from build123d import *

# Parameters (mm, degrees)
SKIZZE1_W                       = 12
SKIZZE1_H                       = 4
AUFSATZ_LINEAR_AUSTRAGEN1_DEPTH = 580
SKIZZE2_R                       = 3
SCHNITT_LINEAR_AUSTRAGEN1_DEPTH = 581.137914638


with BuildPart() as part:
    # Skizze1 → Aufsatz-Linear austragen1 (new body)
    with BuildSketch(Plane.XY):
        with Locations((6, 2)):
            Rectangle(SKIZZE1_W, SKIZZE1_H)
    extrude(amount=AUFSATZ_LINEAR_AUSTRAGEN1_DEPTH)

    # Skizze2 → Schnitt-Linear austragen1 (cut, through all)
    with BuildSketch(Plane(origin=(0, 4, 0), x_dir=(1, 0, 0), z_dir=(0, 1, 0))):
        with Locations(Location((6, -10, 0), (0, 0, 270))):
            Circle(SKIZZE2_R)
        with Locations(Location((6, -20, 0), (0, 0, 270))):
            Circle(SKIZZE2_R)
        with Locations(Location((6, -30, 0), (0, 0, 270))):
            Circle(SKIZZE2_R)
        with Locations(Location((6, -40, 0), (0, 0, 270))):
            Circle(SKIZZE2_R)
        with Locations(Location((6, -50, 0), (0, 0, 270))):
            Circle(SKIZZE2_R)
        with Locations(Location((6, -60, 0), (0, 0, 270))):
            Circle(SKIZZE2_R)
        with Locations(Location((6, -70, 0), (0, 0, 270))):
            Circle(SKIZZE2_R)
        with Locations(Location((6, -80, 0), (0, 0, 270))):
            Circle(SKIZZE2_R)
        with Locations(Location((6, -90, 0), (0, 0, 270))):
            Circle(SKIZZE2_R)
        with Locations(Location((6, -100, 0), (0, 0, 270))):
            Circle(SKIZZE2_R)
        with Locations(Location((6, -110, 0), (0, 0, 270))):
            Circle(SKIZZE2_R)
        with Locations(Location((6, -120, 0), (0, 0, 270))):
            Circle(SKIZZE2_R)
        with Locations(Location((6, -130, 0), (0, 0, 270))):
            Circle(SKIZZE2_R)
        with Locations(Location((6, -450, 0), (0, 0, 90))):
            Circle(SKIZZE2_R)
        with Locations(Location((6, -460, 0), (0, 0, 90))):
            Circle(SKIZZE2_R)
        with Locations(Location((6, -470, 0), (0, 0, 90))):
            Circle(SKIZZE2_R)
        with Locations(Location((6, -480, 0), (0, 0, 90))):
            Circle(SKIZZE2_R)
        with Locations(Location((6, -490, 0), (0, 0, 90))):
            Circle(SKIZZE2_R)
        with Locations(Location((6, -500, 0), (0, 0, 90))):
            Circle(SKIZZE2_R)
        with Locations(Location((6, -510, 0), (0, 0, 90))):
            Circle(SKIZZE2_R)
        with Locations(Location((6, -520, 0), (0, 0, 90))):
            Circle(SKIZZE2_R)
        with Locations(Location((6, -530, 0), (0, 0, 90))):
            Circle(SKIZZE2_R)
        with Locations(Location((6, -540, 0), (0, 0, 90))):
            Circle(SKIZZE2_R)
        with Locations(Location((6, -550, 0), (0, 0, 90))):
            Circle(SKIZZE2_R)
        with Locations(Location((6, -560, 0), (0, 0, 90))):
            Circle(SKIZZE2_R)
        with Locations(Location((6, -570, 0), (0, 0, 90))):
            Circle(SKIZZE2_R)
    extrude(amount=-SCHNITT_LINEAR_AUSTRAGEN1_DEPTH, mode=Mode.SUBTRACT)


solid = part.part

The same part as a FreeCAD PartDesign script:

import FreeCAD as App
import Part
import Sketcher
from FreeCAD import Vector

doc = App.newDocument("Part")
body = doc.addObject("PartDesign::Body", "Body")

sketch1 = doc.addObject("Sketcher::SketchObject", "Sketch")
body.addObject(sketch1)
sketch1.AttachmentSupport = (doc.XY_Plane, [""])
sketch1.MapMode = "FlatFace"
sketch1.addGeometry([
    Part.LineSegment(Vector(0, 4, 0), Vector(0, 0, 0)),
    Part.LineSegment(Vector(0, 0, 0), Vector(12, 0, 0)),
    Part.LineSegment(Vector(12, 0, 0), Vector(12, 4, 0)),
    Part.LineSegment(Vector(12, 4, 0), Vector(0, 4, 0)),
], False)
sketch1.addConstraint([
    Sketcher.Constraint("Coincident", 0, 2, 1, 1),
    Sketcher.Constraint("Coincident", 1, 2, 2, 1),
    Sketcher.Constraint("Coincident", 2, 2, 3, 1),
    Sketcher.Constraint("Coincident", 3, 2, 0, 1),
    Sketcher.Constraint("Vertical", 0),
    Sketcher.Constraint("Horizontal", 1),
    Sketcher.Constraint("Vertical", 2),
    Sketcher.Constraint("Horizontal", 3),
    Sketcher.Constraint("Coincident", 0, 2, -1, 1),
    Sketcher.Constraint("DistanceX", 1, 1, 1, 2, 12.0),
    Sketcher.Constraint("DistanceY", 0, 2, 0, 1, 4.0),
])
pad1 = doc.addObject("PartDesign::Pad", "Pad")
body.addObject(pad1)
pad1.Profile = sketch1
pad1.Length = 580

sketch2 = doc.addObject("Sketcher::SketchObject", "Sketch001")
body.addObject(sketch2)
sketch2.AttachmentSupport = (doc.XZ_Plane, [""])
sketch2.MapMode = "FlatFace"
sketch2.AttachmentOffset = App.Placement(Vector(0, 0, -4), App.Rotation())
sketch2.addGeometry([
    Part.Circle(Vector(6, 10, 0), Vector(0, 0, 1), 3),
    Part.Circle(Vector(6, 20, 0), Vector(0, 0, 1), 3),
    Part.Circle(Vector(6, 30, 0), Vector(0, 0, 1), 3),
    Part.Circle(Vector(6, 40, 0), Vector(0, 0, 1), 3),
    Part.Circle(Vector(6, 50, 0), Vector(0, 0, 1), 3),
    Part.Circle(Vector(6, 60, 0), Vector(0, 0, 1), 3),
    Part.Circle(Vector(6, 70, 0), Vector(0, 0, 1), 3),
    Part.Circle(Vector(6, 80, 0), Vector(0, 0, 1), 3),
    Part.Circle(Vector(6, 90, 0), Vector(0, 0, 1), 3),
    Part.Circle(Vector(6, 100, 0), Vector(0, 0, 1), 3),
    Part.Circle(Vector(6, 110, 0), Vector(0, 0, 1), 3),
    Part.Circle(Vector(6, 120, 0), Vector(0, 0, 1), 3),
    Part.Circle(Vector(6, 130, 0), Vector(0, 0, 1), 3),
    Part.Circle(Vector(6, 450, 0), Vector(0, 0, 1), 3),
    Part.Circle(Vector(6, 460, 0), Vector(0, 0, 1), 3),
    Part.Circle(Vector(6, 470, 0), Vector(0, 0, 1), 3),
    Part.Circle(Vector(6, 480, 0), Vector(0, 0, 1), 3),
    Part.Circle(Vector(6, 490, 0), Vector(0, 0, 1), 3),
    Part.Circle(Vector(6, 500, 0), Vector(0, 0, 1), 3),
    Part.Circle(Vector(6, 510, 0), Vector(0, 0, 1), 3),
    Part.Circle(Vector(6, 520, 0), Vector(0, 0, 1), 3),
    Part.Circle(Vector(6, 530, 0), Vector(0, 0, 1), 3),
    Part.Circle(Vector(6, 540, 0), Vector(0, 0, 1), 3),
    Part.Circle(Vector(6, 550, 0), Vector(0, 0, 1), 3),
    Part.Circle(Vector(6, 560, 0), Vector(0, 0, 1), 3),
    Part.Circle(Vector(6, 570, 0), Vector(0, 0, 1), 3),
], False)
sketch2.addConstraint([
    Sketcher.Constraint("Equal", 0, 1),
    Sketcher.Constraint("Equal", 1, 2),
    Sketcher.Constraint("Equal", 2, 3),
    Sketcher.Constraint("Equal", 3, 4),
    Sketcher.Constraint("Equal", 4, 5),
    Sketcher.Constraint("Equal", 5, 6),
    Sketcher.Constraint("Equal", 6, 7),
    Sketcher.Constraint("Equal", 7, 8),
    Sketcher.Constraint("Equal", 8, 9),
    Sketcher.Constraint("Equal", 9, 10),
    Sketcher.Constraint("Equal", 10, 11),
    Sketcher.Constraint("Equal", 11, 12),
    Sketcher.Constraint("Equal", 12, 13),
    Sketcher.Constraint("Equal", 13, 14),
    Sketcher.Constraint("Equal", 14, 15),
    Sketcher.Constraint("Equal", 15, 16),
    Sketcher.Constraint("Equal", 16, 17),
    Sketcher.Constraint("Equal", 17, 18),
    Sketcher.Constraint("Equal", 18, 19),
    Sketcher.Constraint("Equal", 19, 20),
    Sketcher.Constraint("Equal", 20, 21),
    Sketcher.Constraint("Equal", 21, 22),
    Sketcher.Constraint("Equal", 22, 23),
    Sketcher.Constraint("Equal", 23, 24),
    Sketcher.Constraint("Equal", 24, 25),
    Sketcher.Constraint("Vertical", 0, 3, 1, 3),
    Sketcher.Constraint("Vertical", 1, 3, 2, 3),
    Sketcher.Constraint("Vertical", 2, 3, 3, 3),
    Sketcher.Constraint("Vertical", 3, 3, 4, 3),
    Sketcher.Constraint("Vertical", 4, 3, 5, 3),
    Sketcher.Constraint("Vertical", 5, 3, 6, 3),
    Sketcher.Constraint("Vertical", 6, 3, 7, 3),
    Sketcher.Constraint("Vertical", 7, 3, 8, 3),
    Sketcher.Constraint("Vertical", 8, 3, 9, 3),
    Sketcher.Constraint("Vertical", 9, 3, 10, 3),
    Sketcher.Constraint("Vertical", 10, 3, 11, 3),
    Sketcher.Constraint("Vertical", 11, 3, 12, 3),
    Sketcher.Constraint("Vertical", 12, 3, 13, 3),
    Sketcher.Constraint("Vertical", 13, 3, 14, 3),
    Sketcher.Constraint("Vertical", 14, 3, 15, 3),
    Sketcher.Constraint("Vertical", 15, 3, 16, 3),
    Sketcher.Constraint("Vertical", 16, 3, 17, 3),
    Sketcher.Constraint("Vertical", 17, 3, 18, 3),
    Sketcher.Constraint("Vertical", 18, 3, 19, 3),
    Sketcher.Constraint("Vertical", 19, 3, 20, 3),
    Sketcher.Constraint("Vertical", 20, 3, 21, 3),
    Sketcher.Constraint("Vertical", 21, 3, 22, 3),
    Sketcher.Constraint("Vertical", 22, 3, 23, 3),
    Sketcher.Constraint("Vertical", 23, 3, 24, 3),
    Sketcher.Constraint("Vertical", 24, 3, 25, 3),
    Sketcher.Constraint("Diameter", 0, 6.0),
    Sketcher.Constraint("DistanceX", -1, 1, 0, 3, 6.0),
    Sketcher.Constraint("DistanceY", -1, 1, 0, 3, 10.0),
    Sketcher.Constraint("DistanceY", -1, 1, 1, 3, 20.0),
    Sketcher.Constraint("DistanceY", -1, 1, 2, 3, 30.0),
    Sketcher.Constraint("DistanceY", -1, 1, 3, 3, 40.0),
    Sketcher.Constraint("DistanceY", -1, 1, 4, 3, 50.0),
    Sketcher.Constraint("DistanceY", -1, 1, 5, 3, 60.0),
    Sketcher.Constraint("DistanceY", -1, 1, 6, 3, 70.0),
    Sketcher.Constraint("DistanceY", -1, 1, 7, 3, 80.0),
    Sketcher.Constraint("DistanceY", -1, 1, 8, 3, 90.0),
    Sketcher.Constraint("DistanceY", -1, 1, 9, 3, 100.0),
    Sketcher.Constraint("DistanceY", -1, 1, 10, 3, 110.0),
    Sketcher.Constraint("DistanceY", -1, 1, 11, 3, 120.0),
    Sketcher.Constraint("DistanceY", -1, 1, 12, 3, 130.0),
    Sketcher.Constraint("DistanceY", -1, 1, 13, 3, 450.0),
    Sketcher.Constraint("DistanceY", -1, 1, 14, 3, 460.0),
    Sketcher.Constraint("DistanceY", -1, 1, 15, 3, 470.0),
    Sketcher.Constraint("DistanceY", -1, 1, 16, 3, 480.0),
    Sketcher.Constraint("DistanceY", -1, 1, 17, 3, 490.0),
    Sketcher.Constraint("DistanceY", -1, 1, 18, 3, 500.0),
    Sketcher.Constraint("DistanceY", -1, 1, 19, 3, 510.0),
    Sketcher.Constraint("DistanceY", -1, 1, 20, 3, 520.0),
    Sketcher.Constraint("DistanceY", -1, 1, 21, 3, 530.0),
    Sketcher.Constraint("DistanceY", -1, 1, 22, 3, 540.0),
    Sketcher.Constraint("DistanceY", -1, 1, 23, 3, 550.0),
    Sketcher.Constraint("DistanceY", -1, 1, 24, 3, 560.0),
    Sketcher.Constraint("DistanceY", -1, 1, 25, 3, 570.0),
])
pocket1 = doc.addObject("PartDesign::Pocket", "Pocket")
body.addObject(pocket1)
pocket1.Profile = sketch2
pocket1.Type = "ThroughAll"
pocket1.Reversed = True

doc.recompute()
